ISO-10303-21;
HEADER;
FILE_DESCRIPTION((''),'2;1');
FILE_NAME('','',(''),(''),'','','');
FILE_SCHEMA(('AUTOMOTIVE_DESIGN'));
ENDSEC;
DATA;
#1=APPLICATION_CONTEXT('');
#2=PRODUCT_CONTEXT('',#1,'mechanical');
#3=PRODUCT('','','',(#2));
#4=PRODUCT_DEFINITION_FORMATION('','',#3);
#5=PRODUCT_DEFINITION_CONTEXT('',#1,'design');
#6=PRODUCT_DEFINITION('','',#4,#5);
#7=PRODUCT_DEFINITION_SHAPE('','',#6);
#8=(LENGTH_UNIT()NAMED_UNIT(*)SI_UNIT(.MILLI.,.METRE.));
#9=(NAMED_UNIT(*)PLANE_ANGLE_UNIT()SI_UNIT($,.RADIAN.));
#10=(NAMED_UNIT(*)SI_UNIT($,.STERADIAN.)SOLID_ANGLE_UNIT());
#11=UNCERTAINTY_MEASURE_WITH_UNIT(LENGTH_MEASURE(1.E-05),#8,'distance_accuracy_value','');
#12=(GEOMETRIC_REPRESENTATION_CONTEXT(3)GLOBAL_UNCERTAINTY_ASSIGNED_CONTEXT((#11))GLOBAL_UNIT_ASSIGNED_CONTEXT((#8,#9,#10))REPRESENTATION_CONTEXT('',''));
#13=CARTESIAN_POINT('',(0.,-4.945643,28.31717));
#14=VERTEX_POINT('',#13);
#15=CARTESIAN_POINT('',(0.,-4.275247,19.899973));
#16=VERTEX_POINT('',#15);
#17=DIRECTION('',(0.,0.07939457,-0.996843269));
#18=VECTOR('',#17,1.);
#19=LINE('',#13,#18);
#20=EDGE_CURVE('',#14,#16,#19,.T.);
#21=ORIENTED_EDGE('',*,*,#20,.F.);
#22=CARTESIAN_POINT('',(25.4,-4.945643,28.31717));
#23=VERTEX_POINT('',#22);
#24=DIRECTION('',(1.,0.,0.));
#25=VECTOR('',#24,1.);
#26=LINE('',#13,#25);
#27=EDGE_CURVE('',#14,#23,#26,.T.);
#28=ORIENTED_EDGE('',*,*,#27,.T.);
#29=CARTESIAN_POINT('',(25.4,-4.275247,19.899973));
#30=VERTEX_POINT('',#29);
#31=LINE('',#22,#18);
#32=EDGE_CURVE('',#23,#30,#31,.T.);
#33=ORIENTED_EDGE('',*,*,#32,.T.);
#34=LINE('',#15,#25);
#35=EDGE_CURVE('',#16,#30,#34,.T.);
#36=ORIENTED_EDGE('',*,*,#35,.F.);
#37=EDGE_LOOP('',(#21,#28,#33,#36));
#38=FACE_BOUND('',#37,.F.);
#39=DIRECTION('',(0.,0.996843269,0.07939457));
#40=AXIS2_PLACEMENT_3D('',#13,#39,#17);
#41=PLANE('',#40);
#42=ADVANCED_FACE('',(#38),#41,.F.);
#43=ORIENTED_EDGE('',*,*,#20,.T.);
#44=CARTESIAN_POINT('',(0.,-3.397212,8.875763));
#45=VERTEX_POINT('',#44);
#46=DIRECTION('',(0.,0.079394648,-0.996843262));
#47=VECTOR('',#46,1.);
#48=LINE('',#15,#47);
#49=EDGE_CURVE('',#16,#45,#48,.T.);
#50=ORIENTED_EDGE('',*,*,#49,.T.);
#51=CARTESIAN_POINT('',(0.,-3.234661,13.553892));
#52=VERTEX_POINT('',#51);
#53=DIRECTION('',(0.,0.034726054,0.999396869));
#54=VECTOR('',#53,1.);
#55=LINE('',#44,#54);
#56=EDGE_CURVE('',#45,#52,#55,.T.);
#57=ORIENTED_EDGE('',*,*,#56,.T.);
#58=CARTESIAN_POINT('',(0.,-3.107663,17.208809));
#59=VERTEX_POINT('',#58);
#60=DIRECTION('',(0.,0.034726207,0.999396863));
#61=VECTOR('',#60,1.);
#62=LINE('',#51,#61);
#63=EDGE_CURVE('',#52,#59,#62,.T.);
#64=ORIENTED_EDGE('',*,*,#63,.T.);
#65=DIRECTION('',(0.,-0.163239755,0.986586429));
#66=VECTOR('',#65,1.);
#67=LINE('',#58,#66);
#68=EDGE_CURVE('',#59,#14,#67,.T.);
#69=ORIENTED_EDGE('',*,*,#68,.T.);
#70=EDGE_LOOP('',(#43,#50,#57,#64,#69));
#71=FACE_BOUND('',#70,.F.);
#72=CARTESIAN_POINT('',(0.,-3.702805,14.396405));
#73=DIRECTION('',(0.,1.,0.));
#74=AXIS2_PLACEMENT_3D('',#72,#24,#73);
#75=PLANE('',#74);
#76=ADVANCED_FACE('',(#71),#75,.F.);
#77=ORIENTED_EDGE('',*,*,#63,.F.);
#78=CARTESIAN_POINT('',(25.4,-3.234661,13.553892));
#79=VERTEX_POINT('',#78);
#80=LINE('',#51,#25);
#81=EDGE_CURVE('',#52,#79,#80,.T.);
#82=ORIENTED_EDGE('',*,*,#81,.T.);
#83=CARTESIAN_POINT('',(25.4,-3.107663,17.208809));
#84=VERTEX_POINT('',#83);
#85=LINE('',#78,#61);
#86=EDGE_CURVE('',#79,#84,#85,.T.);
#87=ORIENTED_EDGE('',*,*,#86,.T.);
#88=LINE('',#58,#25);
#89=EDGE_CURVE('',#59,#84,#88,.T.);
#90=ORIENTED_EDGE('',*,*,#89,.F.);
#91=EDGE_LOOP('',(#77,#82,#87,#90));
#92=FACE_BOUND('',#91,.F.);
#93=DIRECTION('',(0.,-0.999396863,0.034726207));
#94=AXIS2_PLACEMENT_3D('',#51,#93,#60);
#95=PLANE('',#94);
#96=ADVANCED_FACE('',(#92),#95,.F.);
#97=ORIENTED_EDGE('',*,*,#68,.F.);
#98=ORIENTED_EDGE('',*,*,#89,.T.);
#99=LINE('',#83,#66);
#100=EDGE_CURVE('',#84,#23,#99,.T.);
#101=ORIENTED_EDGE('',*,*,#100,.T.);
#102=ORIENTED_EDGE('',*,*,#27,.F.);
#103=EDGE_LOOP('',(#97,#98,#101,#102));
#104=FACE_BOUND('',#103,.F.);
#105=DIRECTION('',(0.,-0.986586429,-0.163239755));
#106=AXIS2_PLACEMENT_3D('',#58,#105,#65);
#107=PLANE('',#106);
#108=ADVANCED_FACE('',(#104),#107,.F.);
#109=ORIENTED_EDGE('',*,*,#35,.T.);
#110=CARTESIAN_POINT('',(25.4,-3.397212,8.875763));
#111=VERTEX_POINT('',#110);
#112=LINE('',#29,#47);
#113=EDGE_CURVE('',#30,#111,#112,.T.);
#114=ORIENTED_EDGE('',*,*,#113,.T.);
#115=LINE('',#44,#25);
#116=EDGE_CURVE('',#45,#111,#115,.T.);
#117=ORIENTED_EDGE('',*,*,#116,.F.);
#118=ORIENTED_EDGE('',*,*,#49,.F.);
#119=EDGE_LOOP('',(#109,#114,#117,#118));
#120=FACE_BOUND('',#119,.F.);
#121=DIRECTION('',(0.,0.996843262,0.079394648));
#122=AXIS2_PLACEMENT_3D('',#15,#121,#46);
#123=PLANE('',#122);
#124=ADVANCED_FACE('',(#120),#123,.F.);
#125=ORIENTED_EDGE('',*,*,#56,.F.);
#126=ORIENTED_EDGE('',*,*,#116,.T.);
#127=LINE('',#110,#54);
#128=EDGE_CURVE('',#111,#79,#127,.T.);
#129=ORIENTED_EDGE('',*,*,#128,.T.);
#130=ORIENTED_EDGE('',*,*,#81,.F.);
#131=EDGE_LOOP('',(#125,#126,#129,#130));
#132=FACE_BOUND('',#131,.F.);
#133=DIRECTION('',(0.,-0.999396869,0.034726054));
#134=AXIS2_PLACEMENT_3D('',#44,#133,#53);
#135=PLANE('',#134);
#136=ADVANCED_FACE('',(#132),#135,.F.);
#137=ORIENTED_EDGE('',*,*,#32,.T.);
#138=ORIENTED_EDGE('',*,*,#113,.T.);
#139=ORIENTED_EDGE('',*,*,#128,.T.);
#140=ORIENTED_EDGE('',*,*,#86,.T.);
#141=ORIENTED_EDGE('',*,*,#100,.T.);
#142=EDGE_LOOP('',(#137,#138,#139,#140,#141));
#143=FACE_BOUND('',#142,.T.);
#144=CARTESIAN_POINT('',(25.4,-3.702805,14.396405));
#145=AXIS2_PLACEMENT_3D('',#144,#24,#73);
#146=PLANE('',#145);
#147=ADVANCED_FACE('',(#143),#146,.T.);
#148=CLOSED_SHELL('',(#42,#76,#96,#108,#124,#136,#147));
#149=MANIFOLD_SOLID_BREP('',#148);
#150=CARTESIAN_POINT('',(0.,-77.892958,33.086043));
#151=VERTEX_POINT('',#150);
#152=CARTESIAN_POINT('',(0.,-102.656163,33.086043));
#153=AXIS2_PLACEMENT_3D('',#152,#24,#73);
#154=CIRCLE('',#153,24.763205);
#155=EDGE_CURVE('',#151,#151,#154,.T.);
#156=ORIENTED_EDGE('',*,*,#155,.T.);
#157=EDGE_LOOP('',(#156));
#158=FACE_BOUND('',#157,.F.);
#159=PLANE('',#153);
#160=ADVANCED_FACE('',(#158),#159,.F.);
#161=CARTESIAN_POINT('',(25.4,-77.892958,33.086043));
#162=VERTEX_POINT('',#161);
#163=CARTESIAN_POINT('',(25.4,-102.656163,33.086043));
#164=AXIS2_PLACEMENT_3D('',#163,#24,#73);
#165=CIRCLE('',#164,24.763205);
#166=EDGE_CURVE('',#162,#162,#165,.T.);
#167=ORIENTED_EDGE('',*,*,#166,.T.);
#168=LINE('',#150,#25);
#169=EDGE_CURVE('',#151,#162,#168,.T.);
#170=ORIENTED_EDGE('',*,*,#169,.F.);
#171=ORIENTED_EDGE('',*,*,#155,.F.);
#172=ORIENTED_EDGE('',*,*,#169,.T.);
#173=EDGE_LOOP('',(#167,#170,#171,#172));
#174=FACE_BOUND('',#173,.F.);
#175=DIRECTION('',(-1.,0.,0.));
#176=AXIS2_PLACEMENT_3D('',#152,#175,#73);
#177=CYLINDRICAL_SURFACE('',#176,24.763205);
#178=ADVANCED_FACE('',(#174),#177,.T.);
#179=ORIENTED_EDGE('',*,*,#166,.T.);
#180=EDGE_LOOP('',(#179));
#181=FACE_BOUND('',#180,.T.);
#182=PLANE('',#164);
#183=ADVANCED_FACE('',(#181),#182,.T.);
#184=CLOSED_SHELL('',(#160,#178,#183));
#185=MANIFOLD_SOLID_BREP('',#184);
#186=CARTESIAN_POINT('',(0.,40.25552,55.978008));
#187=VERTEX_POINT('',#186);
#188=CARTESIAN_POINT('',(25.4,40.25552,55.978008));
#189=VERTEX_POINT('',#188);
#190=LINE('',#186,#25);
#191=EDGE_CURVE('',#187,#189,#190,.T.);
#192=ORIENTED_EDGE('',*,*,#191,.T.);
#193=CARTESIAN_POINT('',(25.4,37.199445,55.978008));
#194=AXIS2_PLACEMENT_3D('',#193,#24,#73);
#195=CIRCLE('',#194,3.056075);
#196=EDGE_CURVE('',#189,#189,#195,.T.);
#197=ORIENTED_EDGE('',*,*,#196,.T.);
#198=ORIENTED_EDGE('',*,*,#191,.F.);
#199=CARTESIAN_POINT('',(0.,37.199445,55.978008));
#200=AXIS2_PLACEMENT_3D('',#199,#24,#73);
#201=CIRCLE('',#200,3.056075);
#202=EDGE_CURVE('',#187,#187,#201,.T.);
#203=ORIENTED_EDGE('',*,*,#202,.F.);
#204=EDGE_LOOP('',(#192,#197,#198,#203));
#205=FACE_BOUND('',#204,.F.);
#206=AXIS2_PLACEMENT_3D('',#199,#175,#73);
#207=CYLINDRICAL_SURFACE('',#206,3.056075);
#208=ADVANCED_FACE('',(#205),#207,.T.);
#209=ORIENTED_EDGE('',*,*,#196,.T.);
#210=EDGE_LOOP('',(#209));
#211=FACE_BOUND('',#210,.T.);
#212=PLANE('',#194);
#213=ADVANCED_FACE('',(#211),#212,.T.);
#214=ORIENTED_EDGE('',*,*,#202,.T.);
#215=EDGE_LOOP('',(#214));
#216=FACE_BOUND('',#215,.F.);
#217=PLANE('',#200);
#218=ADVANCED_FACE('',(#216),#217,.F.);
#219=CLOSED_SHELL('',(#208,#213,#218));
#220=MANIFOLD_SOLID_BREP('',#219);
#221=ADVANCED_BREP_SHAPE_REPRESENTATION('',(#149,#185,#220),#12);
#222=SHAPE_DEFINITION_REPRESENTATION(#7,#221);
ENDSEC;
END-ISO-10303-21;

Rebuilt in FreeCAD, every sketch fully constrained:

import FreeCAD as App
import Part
import Sketcher
from FreeCAD import Vector
Q = App.Units.Quantity


def add_polygon(sketch, points):
    """Adds a closed chain of lines whose ends are joined by coincident constraints."""
    first, n = sketch.GeometryCount, len(points)
    for a, b in zip(points, points[1:] + points[:1]):
        sketch.addGeometry(Part.LineSegment(App.Vector(*a, 0), App.Vector(*b, 0)), False)
    for i in range(n):
        sketch.addConstraint(Sketcher.Constraint("Coincident", first + i, 2, first + (i + 1) % n, 1))

doc = App.newDocument("Part")
body = doc.addObject("PartDesign::Body", "Body")
body.AllowCompound = True

# Sketch on YZ plane
sketch1 = doc.addObject("Sketcher::SketchObject", "Sketch")
body.addObject(sketch1)
sketch1.AttachmentSupport = (doc.YZ_Plane, [""])
sketch1.MapMode = "FlatFace"
sketch1.addGeometry(Part.Circle(Vector(-102.7, 33.1, 0), Vector(0, 0, 1), 24.8), False)  # 0
sketch1.addGeometry(Part.Circle(Vector(37.2, 56, 0), Vector(0, 0, 1), 3.1), False)  # 1
add_polygon(sketch1, [(-4.3, 19.9), (-3.4, 8.9), (-3.2, 13.6), (-3.1, 17.2), (-4.9, 28.3)])  # lines 2-6
sketch1.addConstraint([
    Sketcher.Constraint("Parallel", 3, 4),
    Sketcher.Constraint("Parallel", 2, 6),
    Sketcher.Constraint("Diameter", 0, 49.52641),
    Sketcher.Constraint("Diameter", 1, 6.11215),
    Sketcher.Constraint("DistanceX", 3, 2, 4, 2, Q("0.0049999 in")),
    Sketcher.Constraint("DistanceY", -1, 1, 0, 3, Q("1.3026001 in")),
    Sketcher.Constraint("DistanceY", 4, 2, 1, 3, 38.769199),
    Sketcher.Constraint("DistanceX", 0, 3, 4, 2, 99.5485),
    Sketcher.Constraint("Distance", 2, 11.059121),
    Sketcher.Constraint("Distance", 5, 11.25939),
    Sketcher.Constraint("Distance", 6, 8.443852),
    Sketcher.Constraint("DistanceY", -1, 1, 1, 3, 55.978008),
    Sketcher.Constraint("DistanceX", 3, 2, -1, 1, 3.234661),
    Sketcher.Constraint("DistanceY", -1, 1, 3, 2, 13.553892),
    Sketcher.Constraint("DistanceY", -1, 1, 5, 2, 28.31717),
    Sketcher.Constraint("DistanceX", 0, 3, 1, 3, 139.855608),
])
pad1 = doc.addObject("PartDesign::Pad", "Pad")
body.addObject(pad1)
pad1.Profile = sketch1
pad1.Length = Q("1 in")

doc.recompute()
